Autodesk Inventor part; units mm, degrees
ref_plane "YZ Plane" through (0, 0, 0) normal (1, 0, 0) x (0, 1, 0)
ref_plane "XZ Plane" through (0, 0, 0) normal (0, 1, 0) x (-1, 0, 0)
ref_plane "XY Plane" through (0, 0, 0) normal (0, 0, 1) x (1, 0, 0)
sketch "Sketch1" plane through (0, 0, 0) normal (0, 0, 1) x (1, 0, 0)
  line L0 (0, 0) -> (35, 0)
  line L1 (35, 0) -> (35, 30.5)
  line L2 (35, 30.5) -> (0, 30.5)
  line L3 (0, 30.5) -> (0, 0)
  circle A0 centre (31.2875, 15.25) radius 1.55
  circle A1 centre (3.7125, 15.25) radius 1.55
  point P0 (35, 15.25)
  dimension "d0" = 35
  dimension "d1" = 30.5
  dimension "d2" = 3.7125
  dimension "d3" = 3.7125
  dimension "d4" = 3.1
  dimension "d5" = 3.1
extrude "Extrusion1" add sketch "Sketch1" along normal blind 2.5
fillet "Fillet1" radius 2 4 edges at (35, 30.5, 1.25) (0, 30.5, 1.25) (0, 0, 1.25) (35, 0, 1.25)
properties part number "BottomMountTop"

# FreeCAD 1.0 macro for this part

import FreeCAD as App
import Part
import Sketcher

V = App.Vector


def edges_at(feature, points):
    """Names of the edges that pass closest to the given points."""
    edges = feature.Shape.Edges
    near = lambda p: min(range(len(edges)), key=lambda i: edges[i].distToShape(Part.Vertex(*p))[0])
    return sorted({f"Edge{near(p) + 1}" for p in points})

doc = App.newDocument("Part")
body = doc.addObject("PartDesign::Body", "Body")

# Sketch on XY plane
sketch1 = doc.addObject("Sketcher::SketchObject", "Sketch")
body.addObject(sketch1)
sketch1.AttachmentSupport = (doc.XY_Plane, [""])
sketch1.MapMode = "FlatFace"
sketch1.addGeometry([
    Part.LineSegment(V(0, 30.5, 0), V(0, 0, 0)),  # 0
    Part.LineSegment(V(0, 0, 0), V(35, 0, 0)),  # 1
    Part.LineSegment(V(35, 0, 0), V(35, 30.5, 0)),  # 2
    Part.LineSegment(V(35, 30.5, 0), V(0, 30.5, 0)),  # 3
    Part.Circle(V(3.7125, 15.25, 0), V(0, 0, 1), 1.55),  # 4
    Part.Circle(V(31.2875, 15.25, 0), V(0, 0, 1), 1.55),  # 5
], False)
sketch1.addConstraint([
    Sketcher.Constraint("Coincident", 0, 2, 1, 1),
    Sketcher.Constraint("Coincident", 1, 2, 2, 1),
    Sketcher.Constraint("Coincident", 2, 2, 3, 1),
    Sketcher.Constraint("Coincident", 3, 2, 0, 1),
    Sketcher.Constraint("Vertical", 0),
    Sketcher.Constraint("Horizontal", 1),
    Sketcher.Constraint("Vertical", 2),
    Sketcher.Constraint("Horizontal", 3),
    Sketcher.Constraint("Coincident", 0, 2, -1, 1),
    Sketcher.Constraint("Equal", 4, 5),
    Sketcher.Constraint("Horizontal", 4, 3, 5, 3),
    Sketcher.Constraint("Diameter", 4, 3.1),
    Sketcher.Constraint("DistanceX", 1, 1, 1, 2, 35.0),
    Sketcher.Constraint("DistanceY", 0, 2, 0, 1, 30.5),
    Sketcher.Constraint("DistanceX", -1, 1, 4, 3, 3.7125),
    Sketcher.Constraint("DistanceX", 5, 3, 1, 2, 3.7125),
    Sketcher.Constraint("DistanceY", -1, 1, 4, 3, 15.25),
])
pad1 = doc.addObject("PartDesign::Pad", "Pad")
body.addObject(pad1)
pad1.Profile = sketch1
pad1.Length = 2.5
doc.recompute()

fillet = doc.addObject("PartDesign::Fillet", "Fillet")
body.addObject(fillet)
fillet.Base = (pad1, edges_at(pad1, [
    (35, 30.5, 1.25),
    (0, 30.5, 1.25),
    (0, 0, 1.25),
    (35, 0, 1.25),
]))
fillet.Radius = 2

doc.recompute()
